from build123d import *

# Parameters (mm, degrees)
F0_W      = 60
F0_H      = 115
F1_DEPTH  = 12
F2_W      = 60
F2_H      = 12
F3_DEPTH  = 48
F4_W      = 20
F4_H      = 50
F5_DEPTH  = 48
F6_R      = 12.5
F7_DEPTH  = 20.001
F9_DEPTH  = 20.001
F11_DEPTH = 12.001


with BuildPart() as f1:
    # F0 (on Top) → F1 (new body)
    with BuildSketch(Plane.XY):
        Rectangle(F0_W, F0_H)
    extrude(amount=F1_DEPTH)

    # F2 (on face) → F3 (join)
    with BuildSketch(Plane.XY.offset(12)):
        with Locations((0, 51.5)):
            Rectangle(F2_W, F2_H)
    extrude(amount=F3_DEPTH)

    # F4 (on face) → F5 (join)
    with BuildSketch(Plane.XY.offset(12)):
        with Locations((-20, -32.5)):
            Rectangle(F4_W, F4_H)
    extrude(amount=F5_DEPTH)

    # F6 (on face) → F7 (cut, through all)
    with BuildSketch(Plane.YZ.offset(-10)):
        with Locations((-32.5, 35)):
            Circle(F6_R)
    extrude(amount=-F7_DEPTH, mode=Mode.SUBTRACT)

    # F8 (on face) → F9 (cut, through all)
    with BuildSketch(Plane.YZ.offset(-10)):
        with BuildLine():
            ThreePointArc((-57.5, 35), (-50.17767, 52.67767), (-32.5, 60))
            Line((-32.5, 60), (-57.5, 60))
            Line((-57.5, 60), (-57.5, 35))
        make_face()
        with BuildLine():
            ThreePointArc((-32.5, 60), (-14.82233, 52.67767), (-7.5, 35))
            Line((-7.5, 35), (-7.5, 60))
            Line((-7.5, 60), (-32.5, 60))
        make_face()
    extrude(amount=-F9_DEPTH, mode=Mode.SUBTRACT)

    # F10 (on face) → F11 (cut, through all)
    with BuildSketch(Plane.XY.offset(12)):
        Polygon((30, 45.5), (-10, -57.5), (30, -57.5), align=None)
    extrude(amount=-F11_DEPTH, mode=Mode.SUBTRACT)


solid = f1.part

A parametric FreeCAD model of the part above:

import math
import FreeCAD as App
import Part
import Sketcher
Q = App.Units.Quantity


def add_polygon(sketch, points):
    """Adds a closed chain of lines whose ends are joined by coincident constraints."""
    first, n = sketch.GeometryCount, len(points)
    for a, b in zip(points, points[1:] + points[:1]):
        sketch.addGeometry(Part.LineSegment(App.Vector(*a, 0), App.Vector(*b, 0)), False)
    for i in range(n):
        sketch.addConstraint(Sketcher.Constraint("Coincident", first + i, 2, first + (i + 1) % n, 1))

doc = App.newDocument("Part")
params = doc.addObject("Spreadsheet::Sheet", "Params")
for row, (alias, value) in enumerate([
    ("sketch1_width", "60 mm"),
    ("sketch1_height", "115 mm"),
    ("pad1_length", "12 mm"),
    ("sketch2_width", "60 mm"),
    ("sketch2_height", "12 mm"),
    ("pad2_length", "48 mm"),
    ("sketch3_width", "20 mm"),
    ("sketch3_height", "50 mm"),
    ("pad3_length", "48 mm"),
    ("sketch4_diameter", "25 mm"),
    ("sketch5_radius", "24.999998 mm"),
    ("sketch6_width", "40 mm"),
    ("sketch6_height", "103 mm"),
], start=1):
    params.set(f"A{row}", alias)
    params.set(f"B{row}", "=" + value)
    params.setAlias(f"B{row}", alias)

body = doc.addObject("PartDesign::Body", "Body")

sketch1 = body.newObject("Sketcher::SketchObject", "Sketch")
sketch1.AttachmentSupport = (doc.getObject("XY_Plane"), [""])
sketch1.MapMode = "FlatFace"
add_polygon(sketch1, [(-30, 58), (-30, -58), (30, -58), (30, 58)])
sketch1.addConstraint([
    Sketcher.Constraint("Vertical", 0),
    Sketcher.Constraint("Horizontal", 1),
    Sketcher.Constraint("Vertical", 2),
    Sketcher.Constraint("Horizontal", 3),
    Sketcher.Constraint("Symmetric", 0, 2, 2, 2, -1, 1),
    Sketcher.Constraint("DistanceX", 1, 1, 1, 2, Q("60 mm")),
    Sketcher.Constraint("DistanceY", 0, 2, 0, 1, Q("115 mm")),
])
sketch1.setExpression("Constraints[9]", "Params.sketch1_width")
sketch1.setExpression("Constraints[10]", "Params.sketch1_height")
pad1 = body.newObject("PartDesign::Pad", "Pad")
pad1.Profile = sketch1
pad1.setExpression("Length", "Params.pad1_length")

sketch2 = body.newObject("Sketcher::SketchObject", "Sketch001")
sketch2.AttachmentSupport = (doc.getObject("XY_Plane"), [""])
sketch2.MapMode = "FlatFace"
sketch2.AttachmentOffset = App.Placement(App.Vector(0, 0, 12), App.Rotation())
add_polygon(sketch2, [(-30, 58), (-30, 46), (30, 46), (30, 58)])
sketch2.addConstraint([
    Sketcher.Constraint("Vertical", 0),
    Sketcher.Constraint("Horizontal", 1),
    Sketcher.Constraint("Vertical", 2),
    Sketcher.Constraint("Horizontal", 3),
    Sketcher.Constraint("DistanceX", 1, 1, 1, 2, Q("60 mm")),
    Sketcher.Constraint("DistanceY", 0, 2, 0, 1, Q("12 mm")),
    Sketcher.Constraint("DistanceX", 0, 2, -1, 1, Q("30 mm")),
    Sketcher.Constraint("DistanceY", -1, 1, 0, 2, Q("45.5 mm")),
])
sketch2.setExpression("Constraints[8]", "Params.sketch2_width")
sketch2.setExpression("Constraints[9]", "Params.sketch2_height")
pad2 = body.newObject("PartDesign::Pad", "Pad001")
pad2.Profile = sketch2
pad2.setExpression("Length", "Params.pad2_length")

sketch3 = body.newObject("Sketcher::SketchObject", "Sketch002")
sketch3.AttachmentSupport = (doc.getObject("XY_Plane"), [""])
sketch3.MapMode = "FlatFace"
sketch3.AttachmentOffset = App.Placement(App.Vector(0, 0, 12), App.Rotation())
add_polygon(sketch3, [(-30, -8), (-30, -58), (-10, -58), (-10, -8)])
sketch3.addConstraint([
    Sketcher.Constraint("Vertical", 0),
    Sketcher.Constraint("Horizontal", 1),
    Sketcher.Constraint("Vertical", 2),
    Sketcher.Constraint("Horizontal", 3),
    Sketcher.Constraint("DistanceX", 1, 1, 1, 2, Q("20 mm")),
    Sketcher.Constraint("DistanceY", 0, 2, 0, 1, Q("50 mm")),
    Sketcher.Constraint("DistanceX", 0, 2, -1, 1, Q("30 mm")),
    Sketcher.Constraint("DistanceY", 0, 2, -1, 1, Q("57.5 mm")),
])
sketch3.setExpression("Constraints[8]", "Params.sketch3_width")
sketch3.setExpression("Constraints[9]", "Params.sketch3_height")
pad3 = body.newObject("PartDesign::Pad", "Pad002")
pad3.Profile = sketch3
pad3.setExpression("Length", "Params.pad3_length")

sketch4 = body.newObject("Sketcher::SketchObject", "Sketch003")
sketch4.AttachmentSupport = (doc.getObject("YZ_Plane"), [""])
sketch4.MapMode = "FlatFace"
sketch4.AttachmentOffset = App.Placement(App.Vector(0, 0, -10), App.Rotation())
sketch4.addGeometry(Part.Circle(App.Vector(-32, 35, 0), App.Vector(0, 0, 1), 12), False)
sketch4.addConstraint([
    Sketcher.Constraint("Diameter", 0, Q("25 mm")),
    Sketcher.Constraint("DistanceY", -1, 1, 0, 3, Q("35 mm")),
    Sketcher.Constraint("DistanceX", 0, 3, -1, 1, Q("32.5 mm")),
])
sketch4.setExpression("Constraints[0]", "Params.sketch4_diameter")
pocket1 = body.newObject("PartDesign::Pocket", "Pocket")
pocket1.Profile = sketch4
pocket1.Type = "ThroughAll"

sketch5 = body.newObject("Sketcher::SketchObject", "Sketch004")
sketch5.AttachmentSupport = (doc.getObject("YZ_Plane"), [""])
sketch5.MapMode = "FlatFace"
sketch5.AttachmentOffset = App.Placement(App.Vector(0, 0, -10), App.Rotation())
sketch5.addGeometry([
    Part.ArcOfCircle(Part.Circle(App.Vector(-33, 35, 0), App.Vector(0, 0, 1), 25), math.radians(90), math.radians(180)),
    Part.LineSegment(App.Vector(-32, 60, 0), App.Vector(-58, 60, 0)),
    Part.LineSegment(App.Vector(-58, 60, 0), App.Vector(-58, 35, 0)),
    Part.ArcOfCircle(Part.Circle(App.Vector(-32, 35, 0), App.Vector(0, 0, 1), 25), math.radians(0), math.radians(90)),
    Part.LineSegment(App.Vector(-8, 35, 0), App.Vector(-8, 60, 0)),
    Part.LineSegment(App.Vector(-8, 60, 0), App.Vector(-32, 60, 0)),
], False)
sketch5.addConstraint([
    Sketcher.Constraint("Tangent", 0, 1, 1, 1),
    Sketcher.Constraint("Coincident", 1, 2, 2, 1),
    Sketcher.Constraint("Tangent", 2, 2, 0, 2),
    Sketcher.Constraint("Tangent", 3, 1, 4, 1),
    Sketcher.Constraint("Coincident", 4, 2, 5, 1),
    Sketcher.Constraint("Tangent", 5, 2, 3, 2),
    Sketcher.Constraint("Horizontal", 1),
    Sketcher.Constraint("Vertical", 2),
    Sketcher.Constraint("Vertical", 4),
    Sketcher.Constraint("Horizontal", 5),
    Sketcher.Constraint("Coincident", 3, 3, 0, 3),
    Sketcher.Constraint("Equal", 0, 3),
    Sketcher.Constraint("Radius", 0, Q("24.999998 mm")),
    Sketcher.Constraint("DistanceY", -1, 1, 0, 3, Q("35.000002 mm")),
    Sketcher.Constraint("DistanceX", 0, 3, -1, 1, Q("32.500002 mm")),
])
sketch5.setExpression("Constraints[12]", "Params.sketch5_radius")
pocket2 = body.newObject("PartDesign::Pocket", "Pocket001")
pocket2.Profile = sketch5
pocket2.Type = "ThroughAll"

sketch6 = body.newObject("Sketcher::SketchObject", "Sketch005")
sketch6.AttachmentSupport = (doc.getObject("XY_Plane"), [""])
sketch6.MapMode = "FlatFace"
sketch6.AttachmentOffset = App.Placement(App.Vector(0, 0, 12), App.Rotation())
add_polygon(sketch6, [(30, 46), (-10, -58), (30, -58)])
sketch6.addConstraint([
    Sketcher.Constraint("Horizontal", 1),
    Sketcher.Constraint("Vertical", 2),
    Sketcher.Constraint("DistanceX", 1, 1, 1, 2, Q("40 mm")),
    Sketcher.Constraint("DistanceY", 2, 1, 2, 2, Q("103 mm")),
    Sketcher.Constraint("DistanceX", 0, 2, -1, 1, Q("10 mm")),
    Sketcher.Constraint("DistanceY", 0, 2, -1, 1, Q("57.5 mm")),
])
sketch6.setExpression("Constraints[5]", "Params.sketch6_width")
sketch6.setExpression("Constraints[6]", "Params.sketch6_height")
pocket3 = body.newObject("PartDesign::Pocket", "Pocket002")
pocket3.Profile = sketch6
pocket3.Type = "ThroughAll"

doc.recompute()
